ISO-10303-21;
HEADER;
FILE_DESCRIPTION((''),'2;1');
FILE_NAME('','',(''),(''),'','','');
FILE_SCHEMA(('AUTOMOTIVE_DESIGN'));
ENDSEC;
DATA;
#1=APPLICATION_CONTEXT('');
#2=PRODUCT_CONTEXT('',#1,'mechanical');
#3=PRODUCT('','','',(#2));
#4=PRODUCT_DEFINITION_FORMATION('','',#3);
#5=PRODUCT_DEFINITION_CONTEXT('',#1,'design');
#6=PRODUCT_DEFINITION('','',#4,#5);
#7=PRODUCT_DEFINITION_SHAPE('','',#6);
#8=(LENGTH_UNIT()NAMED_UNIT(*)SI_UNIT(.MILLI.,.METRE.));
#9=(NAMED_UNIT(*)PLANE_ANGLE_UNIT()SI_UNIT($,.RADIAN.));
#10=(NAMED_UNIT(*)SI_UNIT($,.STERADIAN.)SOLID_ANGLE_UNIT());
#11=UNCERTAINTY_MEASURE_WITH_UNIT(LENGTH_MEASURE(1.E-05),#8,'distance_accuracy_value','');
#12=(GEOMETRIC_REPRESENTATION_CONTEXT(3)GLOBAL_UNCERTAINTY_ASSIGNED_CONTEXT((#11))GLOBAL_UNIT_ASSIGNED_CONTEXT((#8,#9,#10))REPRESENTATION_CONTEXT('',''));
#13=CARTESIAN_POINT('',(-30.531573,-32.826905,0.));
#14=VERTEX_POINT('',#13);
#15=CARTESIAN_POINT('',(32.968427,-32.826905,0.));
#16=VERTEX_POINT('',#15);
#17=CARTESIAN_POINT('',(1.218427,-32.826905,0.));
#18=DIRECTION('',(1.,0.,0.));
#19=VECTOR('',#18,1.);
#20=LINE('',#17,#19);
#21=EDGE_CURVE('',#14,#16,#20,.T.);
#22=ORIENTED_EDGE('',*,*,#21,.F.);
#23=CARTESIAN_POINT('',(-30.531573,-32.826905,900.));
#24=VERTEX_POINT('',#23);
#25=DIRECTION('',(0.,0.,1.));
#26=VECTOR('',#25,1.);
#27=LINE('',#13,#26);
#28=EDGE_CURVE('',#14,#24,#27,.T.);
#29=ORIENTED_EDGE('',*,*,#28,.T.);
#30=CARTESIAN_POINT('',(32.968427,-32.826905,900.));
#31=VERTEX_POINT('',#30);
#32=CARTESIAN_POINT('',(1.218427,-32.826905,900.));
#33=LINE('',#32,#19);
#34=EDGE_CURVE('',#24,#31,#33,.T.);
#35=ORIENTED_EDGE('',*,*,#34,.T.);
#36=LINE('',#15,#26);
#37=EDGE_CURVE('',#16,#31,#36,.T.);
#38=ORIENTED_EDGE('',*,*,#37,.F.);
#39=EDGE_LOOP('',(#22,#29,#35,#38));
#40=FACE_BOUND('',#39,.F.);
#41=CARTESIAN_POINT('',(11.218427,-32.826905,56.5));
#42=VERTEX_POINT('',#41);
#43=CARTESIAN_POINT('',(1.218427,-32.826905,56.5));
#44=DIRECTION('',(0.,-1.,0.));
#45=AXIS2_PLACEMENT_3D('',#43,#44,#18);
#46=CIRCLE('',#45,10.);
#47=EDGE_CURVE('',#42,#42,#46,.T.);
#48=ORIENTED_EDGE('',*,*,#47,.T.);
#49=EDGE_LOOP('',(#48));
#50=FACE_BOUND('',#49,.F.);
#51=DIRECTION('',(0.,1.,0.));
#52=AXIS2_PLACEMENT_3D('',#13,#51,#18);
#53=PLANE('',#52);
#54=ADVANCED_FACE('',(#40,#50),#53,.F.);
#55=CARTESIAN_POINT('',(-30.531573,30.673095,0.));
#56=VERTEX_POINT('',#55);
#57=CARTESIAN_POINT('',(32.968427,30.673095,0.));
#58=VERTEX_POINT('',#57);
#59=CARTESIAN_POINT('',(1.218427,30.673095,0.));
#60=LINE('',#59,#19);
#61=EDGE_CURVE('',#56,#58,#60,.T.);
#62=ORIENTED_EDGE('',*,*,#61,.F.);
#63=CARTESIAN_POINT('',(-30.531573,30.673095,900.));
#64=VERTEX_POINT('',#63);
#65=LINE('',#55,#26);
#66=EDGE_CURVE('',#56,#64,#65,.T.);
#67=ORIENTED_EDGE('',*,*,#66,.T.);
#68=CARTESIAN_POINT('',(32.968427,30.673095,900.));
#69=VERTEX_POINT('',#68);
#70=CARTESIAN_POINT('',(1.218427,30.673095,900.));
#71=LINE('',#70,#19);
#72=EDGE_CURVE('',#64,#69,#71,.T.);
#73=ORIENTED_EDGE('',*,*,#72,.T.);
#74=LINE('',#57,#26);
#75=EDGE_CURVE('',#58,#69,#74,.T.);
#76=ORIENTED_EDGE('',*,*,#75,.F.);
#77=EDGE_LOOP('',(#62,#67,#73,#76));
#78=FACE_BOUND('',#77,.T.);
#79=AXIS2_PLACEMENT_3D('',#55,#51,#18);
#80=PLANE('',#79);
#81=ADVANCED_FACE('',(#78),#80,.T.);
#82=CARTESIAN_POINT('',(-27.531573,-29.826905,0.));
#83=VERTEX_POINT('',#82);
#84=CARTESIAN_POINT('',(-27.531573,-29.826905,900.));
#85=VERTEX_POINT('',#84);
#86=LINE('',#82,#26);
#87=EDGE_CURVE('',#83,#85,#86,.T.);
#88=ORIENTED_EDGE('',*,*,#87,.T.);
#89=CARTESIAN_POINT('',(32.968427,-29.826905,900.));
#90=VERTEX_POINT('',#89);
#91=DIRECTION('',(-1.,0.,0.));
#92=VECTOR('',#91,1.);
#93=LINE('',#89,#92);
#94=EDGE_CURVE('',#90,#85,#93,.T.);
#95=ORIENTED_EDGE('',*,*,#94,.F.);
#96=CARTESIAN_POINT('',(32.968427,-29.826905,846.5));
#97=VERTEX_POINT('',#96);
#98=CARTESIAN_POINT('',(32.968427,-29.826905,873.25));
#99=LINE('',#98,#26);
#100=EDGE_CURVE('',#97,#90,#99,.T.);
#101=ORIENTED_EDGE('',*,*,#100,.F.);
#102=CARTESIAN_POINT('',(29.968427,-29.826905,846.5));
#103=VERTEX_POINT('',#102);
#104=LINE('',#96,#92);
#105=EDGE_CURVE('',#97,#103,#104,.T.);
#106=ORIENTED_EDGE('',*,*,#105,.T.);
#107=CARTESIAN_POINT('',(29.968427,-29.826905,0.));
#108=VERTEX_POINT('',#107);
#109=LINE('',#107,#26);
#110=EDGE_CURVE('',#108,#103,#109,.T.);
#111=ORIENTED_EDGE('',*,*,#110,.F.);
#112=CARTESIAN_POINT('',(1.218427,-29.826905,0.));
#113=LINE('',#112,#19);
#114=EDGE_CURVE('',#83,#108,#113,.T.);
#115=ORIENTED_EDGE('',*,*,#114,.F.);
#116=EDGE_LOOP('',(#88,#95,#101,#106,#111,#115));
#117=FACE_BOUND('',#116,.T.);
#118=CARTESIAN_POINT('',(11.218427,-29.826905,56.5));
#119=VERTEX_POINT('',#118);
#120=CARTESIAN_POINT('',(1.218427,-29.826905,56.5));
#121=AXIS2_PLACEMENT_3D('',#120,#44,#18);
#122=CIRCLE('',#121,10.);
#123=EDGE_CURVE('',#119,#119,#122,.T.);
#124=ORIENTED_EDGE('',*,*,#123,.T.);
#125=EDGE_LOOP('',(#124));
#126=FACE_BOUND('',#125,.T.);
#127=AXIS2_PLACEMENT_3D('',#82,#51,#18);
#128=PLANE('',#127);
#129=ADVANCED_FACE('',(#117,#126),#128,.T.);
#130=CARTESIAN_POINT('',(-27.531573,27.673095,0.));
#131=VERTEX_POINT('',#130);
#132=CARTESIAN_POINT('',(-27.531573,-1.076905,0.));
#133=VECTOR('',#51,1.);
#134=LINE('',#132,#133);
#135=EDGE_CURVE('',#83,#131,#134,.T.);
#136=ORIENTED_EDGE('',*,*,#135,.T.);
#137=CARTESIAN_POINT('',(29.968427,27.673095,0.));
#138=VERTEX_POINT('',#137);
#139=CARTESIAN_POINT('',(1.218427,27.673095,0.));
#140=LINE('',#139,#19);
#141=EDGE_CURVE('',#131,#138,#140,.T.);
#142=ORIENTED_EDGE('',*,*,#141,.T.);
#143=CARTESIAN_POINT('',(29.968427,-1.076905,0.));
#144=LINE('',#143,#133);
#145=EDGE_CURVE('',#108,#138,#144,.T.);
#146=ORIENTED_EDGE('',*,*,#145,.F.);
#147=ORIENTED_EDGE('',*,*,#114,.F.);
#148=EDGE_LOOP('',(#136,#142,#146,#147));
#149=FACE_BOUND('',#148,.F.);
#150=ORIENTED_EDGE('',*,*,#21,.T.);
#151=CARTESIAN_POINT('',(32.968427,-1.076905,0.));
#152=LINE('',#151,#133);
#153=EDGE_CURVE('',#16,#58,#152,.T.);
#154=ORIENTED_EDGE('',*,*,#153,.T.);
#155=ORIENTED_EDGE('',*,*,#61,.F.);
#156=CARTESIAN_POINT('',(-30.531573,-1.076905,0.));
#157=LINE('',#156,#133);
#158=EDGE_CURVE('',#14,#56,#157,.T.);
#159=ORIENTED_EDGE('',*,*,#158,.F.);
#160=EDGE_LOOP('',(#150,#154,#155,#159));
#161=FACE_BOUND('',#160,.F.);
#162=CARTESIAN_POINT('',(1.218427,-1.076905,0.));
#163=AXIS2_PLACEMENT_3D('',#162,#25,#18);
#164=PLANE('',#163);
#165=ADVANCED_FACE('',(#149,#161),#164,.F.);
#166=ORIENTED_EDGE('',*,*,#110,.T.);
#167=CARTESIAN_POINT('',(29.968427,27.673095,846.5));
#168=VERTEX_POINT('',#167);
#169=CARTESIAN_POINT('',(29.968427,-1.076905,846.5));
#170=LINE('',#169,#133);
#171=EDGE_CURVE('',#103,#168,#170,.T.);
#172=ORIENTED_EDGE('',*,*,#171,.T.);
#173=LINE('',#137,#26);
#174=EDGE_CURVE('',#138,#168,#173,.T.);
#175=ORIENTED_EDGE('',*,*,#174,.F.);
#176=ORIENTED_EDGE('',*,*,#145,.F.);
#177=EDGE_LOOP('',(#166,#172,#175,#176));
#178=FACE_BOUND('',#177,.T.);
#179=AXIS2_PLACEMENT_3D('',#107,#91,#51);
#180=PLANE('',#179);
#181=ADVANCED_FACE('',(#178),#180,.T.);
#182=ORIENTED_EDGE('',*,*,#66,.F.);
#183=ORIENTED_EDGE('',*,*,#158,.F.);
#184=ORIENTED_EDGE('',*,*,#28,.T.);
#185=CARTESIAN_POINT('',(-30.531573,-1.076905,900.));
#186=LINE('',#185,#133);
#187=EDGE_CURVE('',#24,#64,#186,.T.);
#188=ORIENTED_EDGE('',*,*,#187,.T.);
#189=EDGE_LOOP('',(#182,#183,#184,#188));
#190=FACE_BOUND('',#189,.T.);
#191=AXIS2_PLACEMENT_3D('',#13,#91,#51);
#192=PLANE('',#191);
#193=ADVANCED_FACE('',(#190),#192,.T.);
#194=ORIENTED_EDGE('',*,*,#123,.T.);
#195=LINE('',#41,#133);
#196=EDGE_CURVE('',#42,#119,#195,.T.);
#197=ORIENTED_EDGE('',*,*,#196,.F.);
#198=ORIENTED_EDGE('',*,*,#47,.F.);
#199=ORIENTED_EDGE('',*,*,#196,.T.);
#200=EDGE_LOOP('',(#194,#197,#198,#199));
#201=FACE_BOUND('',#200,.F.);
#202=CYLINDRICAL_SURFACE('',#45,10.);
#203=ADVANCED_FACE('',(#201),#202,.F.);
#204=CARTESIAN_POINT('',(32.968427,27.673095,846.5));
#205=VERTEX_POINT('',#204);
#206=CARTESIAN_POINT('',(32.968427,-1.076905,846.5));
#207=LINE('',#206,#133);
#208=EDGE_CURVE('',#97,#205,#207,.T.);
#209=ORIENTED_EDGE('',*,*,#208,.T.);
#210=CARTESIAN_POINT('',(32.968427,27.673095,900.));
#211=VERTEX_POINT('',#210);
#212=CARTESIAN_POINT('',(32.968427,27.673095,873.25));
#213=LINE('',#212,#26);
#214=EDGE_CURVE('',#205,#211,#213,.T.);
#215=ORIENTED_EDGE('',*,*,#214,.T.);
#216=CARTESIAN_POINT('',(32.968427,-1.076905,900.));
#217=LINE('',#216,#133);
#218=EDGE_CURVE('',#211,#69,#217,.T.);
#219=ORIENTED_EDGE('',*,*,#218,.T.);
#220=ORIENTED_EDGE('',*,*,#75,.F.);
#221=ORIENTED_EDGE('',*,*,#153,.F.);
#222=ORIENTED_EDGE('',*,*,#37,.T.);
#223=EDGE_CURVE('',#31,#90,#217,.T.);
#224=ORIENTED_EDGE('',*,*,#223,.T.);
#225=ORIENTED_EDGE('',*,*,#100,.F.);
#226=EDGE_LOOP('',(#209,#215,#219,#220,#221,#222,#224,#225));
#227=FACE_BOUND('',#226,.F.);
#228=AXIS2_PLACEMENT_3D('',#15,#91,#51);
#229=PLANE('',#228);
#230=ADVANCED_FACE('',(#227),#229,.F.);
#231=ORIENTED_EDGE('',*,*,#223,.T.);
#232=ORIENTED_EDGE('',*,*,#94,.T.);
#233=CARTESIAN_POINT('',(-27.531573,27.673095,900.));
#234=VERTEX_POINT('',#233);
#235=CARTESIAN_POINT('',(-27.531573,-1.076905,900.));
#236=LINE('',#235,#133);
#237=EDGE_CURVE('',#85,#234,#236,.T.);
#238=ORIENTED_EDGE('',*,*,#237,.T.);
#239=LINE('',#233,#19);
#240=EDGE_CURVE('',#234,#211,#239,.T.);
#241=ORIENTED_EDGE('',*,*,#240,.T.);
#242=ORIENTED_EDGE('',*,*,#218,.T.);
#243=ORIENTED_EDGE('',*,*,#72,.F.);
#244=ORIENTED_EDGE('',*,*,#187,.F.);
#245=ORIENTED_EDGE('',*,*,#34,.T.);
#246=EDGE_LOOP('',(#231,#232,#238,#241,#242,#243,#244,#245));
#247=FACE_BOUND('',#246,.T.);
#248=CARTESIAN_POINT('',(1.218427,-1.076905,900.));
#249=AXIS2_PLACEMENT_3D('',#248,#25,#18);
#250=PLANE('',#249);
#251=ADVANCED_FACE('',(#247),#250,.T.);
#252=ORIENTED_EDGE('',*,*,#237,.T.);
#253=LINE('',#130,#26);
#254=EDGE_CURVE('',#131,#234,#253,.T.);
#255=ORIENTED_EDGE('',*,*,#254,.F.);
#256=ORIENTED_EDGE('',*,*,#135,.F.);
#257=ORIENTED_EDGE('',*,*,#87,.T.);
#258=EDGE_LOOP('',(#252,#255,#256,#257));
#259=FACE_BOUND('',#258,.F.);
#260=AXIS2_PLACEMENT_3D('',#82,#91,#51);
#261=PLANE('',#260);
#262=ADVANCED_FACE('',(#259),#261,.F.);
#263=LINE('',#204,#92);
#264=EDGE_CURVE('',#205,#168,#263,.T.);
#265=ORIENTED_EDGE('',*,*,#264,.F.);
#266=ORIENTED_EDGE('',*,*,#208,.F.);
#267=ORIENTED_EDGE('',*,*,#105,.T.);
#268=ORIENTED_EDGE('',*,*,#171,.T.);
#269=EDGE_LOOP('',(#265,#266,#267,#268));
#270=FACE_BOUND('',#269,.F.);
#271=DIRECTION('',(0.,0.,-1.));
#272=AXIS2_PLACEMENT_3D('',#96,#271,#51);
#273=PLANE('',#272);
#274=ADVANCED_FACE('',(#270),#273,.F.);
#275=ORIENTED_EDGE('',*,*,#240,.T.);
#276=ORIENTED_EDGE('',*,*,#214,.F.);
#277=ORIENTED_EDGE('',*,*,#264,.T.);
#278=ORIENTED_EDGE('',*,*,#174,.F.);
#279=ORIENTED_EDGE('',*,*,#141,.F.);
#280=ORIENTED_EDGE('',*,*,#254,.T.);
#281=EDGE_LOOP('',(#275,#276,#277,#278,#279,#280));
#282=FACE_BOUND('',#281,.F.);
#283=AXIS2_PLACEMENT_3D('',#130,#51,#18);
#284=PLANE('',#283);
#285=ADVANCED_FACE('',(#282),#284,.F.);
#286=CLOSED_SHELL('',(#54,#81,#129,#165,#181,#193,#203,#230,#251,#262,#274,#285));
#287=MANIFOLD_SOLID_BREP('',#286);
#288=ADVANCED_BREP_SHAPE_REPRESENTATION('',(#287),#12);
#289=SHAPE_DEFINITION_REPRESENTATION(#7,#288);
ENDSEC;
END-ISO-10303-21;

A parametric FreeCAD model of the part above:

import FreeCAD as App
import Part
import Sketcher
Q = App.Units.Quantity


def add_polygon(sketch, points):
    """Adds a closed chain of lines whose ends are joined by coincident constraints."""
    first, n = sketch.GeometryCount, len(points)
    for a, b in zip(points, points[1:] + points[:1]):
        sketch.addGeometry(Part.LineSegment(App.Vector(*a, 0), App.Vector(*b, 0)), False)
    for i in range(n):
        sketch.addConstraint(Sketcher.Constraint("Coincident", first + i, 2, first + (i + 1) % n, 1))

doc = App.newDocument("Part")
body = doc.addObject("PartDesign::Body", "Body")

# Sketch on XY plane
sketch1 = body.newObject("Sketcher::SketchObject", "Sketch")
sketch1.AttachmentSupport = (doc.getObject("XY_Plane"), [""])
sketch1.MapMode = "FlatFace"
add_polygon(sketch1, [(-31, 31), (-31, -33), (33, -33), (33, 31)])  # lines 0-3
add_polygon(sketch1, [(30, -30), (-28, -30), (-28, 28), (30, 28)])  # lines 4-7
sketch1.addConstraint(Sketcher.Constraint("Vertical", 0))
sketch1.addConstraint(Sketcher.Constraint("Horizontal", 1))
sketch1.addConstraint(Sketcher.Constraint("Vertical", 2))
sketch1.addConstraint(Sketcher.Constraint("Horizontal", 3))
sketch1.addConstraint(Sketcher.Constraint("Horizontal", 4))
sketch1.addConstraint(Sketcher.Constraint("Vertical", 5))
sketch1.addConstraint(Sketcher.Constraint("Horizontal", 6))
sketch1.addConstraint(Sketcher.Constraint("Vertical", 7))
sketch1.addConstraint(Sketcher.Constraint("Equal", 3, 0))
sketch1.addConstraint(Sketcher.Constraint("Equal", 6, 5))
sketch1.addConstraint(Sketcher.Constraint("DistanceX", 1, 1, 1, 2, Q("63.5 mm")))
sketch1.addConstraint(Sketcher.Constraint("DistanceX", 4, 2, 4, 1, Q("57.5 mm")))
sketch1.addConstraint(Sketcher.Constraint("DistanceX", 0, 2, 4, 2, Q("3 mm")))
sketch1.addConstraint(Sketcher.Constraint("DistanceY", 0, 2, 4, 2, Q("3 mm")))
sketch1.addConstraint(Sketcher.Constraint("DistanceX", 0, 2, -1, 1, Q("30.531573 mm")))
sketch1.addConstraint(Sketcher.Constraint("DistanceY", 0, 2, -1, 1, Q("32.826905 mm")))
pad1 = body.newObject("PartDesign::Pad", "Pad")
pad1.Profile = sketch1
pad1.Length = 900

# Sketch on YZ plane
sketch2 = body.newObject("Sketcher::SketchObject", "Sketch001")
sketch2.AttachmentSupport = (doc.getObject("YZ_Plane"), [""])
sketch2.MapMode = "FlatFace"
sketch2.AttachmentOffset = App.Placement(App.Vector(0, 0, 32.968427), App.Rotation())
add_polygon(sketch2, [(-30, 900), (-30, 846), (28, 846), (28, 900)])  # lines 0-3
sketch2.addConstraint(Sketcher.Constraint("Vertical", 0))
sketch2.addConstraint(Sketcher.Constraint("Horizontal", 1))
sketch2.addConstraint(Sketcher.Constraint("Vertical", 2))
sketch2.addConstraint(Sketcher.Constraint("Horizontal", 3))
sketch2.addConstraint(Sketcher.Constraint("DistanceX", 1, 1, 1, 2, Q("57.5 mm")))
sketch2.addConstraint(Sketcher.Constraint("DistanceY", 0, 2, 0, 1, Q("53.5 mm")))
sketch2.addConstraint(Sketcher.Constraint("DistanceY", -1, 1, 2, 2, Q("900 mm")))
sketch2.addConstraint(Sketcher.Constraint("DistanceX", 0, 2, -1, 1, Q("29.826905 mm")))
pocket1 = body.newObject("PartDesign::Pocket", "Pocket")
pocket1.Profile = sketch2
pocket1.Length = 3

# Sketch on XZ plane
sketch3 = body.newObject("Sketcher::SketchObject", "Sketch002")
sketch3.AttachmentSupport = (doc.getObject("XZ_Plane"), [""])
sketch3.MapMode = "FlatFace"
sketch3.AttachmentOffset = App.Placement(App.Vector(0, 0, 32.826905), App.Rotation())
sketch3.addGeometry(Part.Circle(App.Vector(1, 56, 0), App.Vector(0, 0, 1), 10), False)
sketch3.addConstraint(Sketcher.Constraint("Diameter", 0, Q("20 mm")))
sketch3.addConstraint(Sketcher.Constraint("DistanceY", -1, 1, 0, 3, Q("56.5 mm")))
sketch3.addConstraint(Sketcher.Constraint("DistanceX", -1, 1, 0, 3, Q("1.218427 mm")))
pocket2 = body.newObject("PartDesign::Pocket", "Pocket001")
pocket2.Profile = sketch3
pocket2.Length = 3

doc.recompute()
